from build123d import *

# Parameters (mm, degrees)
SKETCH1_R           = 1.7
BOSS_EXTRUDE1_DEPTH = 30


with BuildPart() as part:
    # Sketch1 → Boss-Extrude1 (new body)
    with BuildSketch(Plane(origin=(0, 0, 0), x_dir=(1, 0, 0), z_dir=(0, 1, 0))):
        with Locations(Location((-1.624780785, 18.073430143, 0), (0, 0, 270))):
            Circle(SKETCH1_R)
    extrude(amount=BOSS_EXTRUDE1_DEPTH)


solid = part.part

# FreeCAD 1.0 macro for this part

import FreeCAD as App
import Part
import Sketcher
from FreeCAD import Vector
Q = App.Units.Quantity

doc = App.newDocument("Part")
body = doc.addObject("PartDesign::Body", "Body")

# Sketch on XZ plane
sketch1 = body.newObject("Sketcher::SketchObject", "Sketch")
sketch1.AttachmentSupport = (doc.getObject("XZ_Plane"), [""])
sketch1.MapMode = "FlatFace"
sketch1.addGeometry(Part.Circle(Vector(-1.6, -18.1, 0), Vector(0, 0, 1), 1.7), False)
sketch1.addConstraint(Sketcher.Constraint("Diameter", 0, Q("3.4 mm")))
sketch1.addConstraint(Sketcher.Constraint("DistanceX", 0, 3, -1, 1, Q("1.624781 mm")))
sketch1.addConstraint(Sketcher.Constraint("DistanceY", 0, 3, -1, 1, Q("18.07343 mm")))
pad1 = body.newObject("PartDesign::Pad", "Pad")
pad1.Profile = sketch1
pad1.Length = 30
pad1.Reversed = True

doc.recompute()
